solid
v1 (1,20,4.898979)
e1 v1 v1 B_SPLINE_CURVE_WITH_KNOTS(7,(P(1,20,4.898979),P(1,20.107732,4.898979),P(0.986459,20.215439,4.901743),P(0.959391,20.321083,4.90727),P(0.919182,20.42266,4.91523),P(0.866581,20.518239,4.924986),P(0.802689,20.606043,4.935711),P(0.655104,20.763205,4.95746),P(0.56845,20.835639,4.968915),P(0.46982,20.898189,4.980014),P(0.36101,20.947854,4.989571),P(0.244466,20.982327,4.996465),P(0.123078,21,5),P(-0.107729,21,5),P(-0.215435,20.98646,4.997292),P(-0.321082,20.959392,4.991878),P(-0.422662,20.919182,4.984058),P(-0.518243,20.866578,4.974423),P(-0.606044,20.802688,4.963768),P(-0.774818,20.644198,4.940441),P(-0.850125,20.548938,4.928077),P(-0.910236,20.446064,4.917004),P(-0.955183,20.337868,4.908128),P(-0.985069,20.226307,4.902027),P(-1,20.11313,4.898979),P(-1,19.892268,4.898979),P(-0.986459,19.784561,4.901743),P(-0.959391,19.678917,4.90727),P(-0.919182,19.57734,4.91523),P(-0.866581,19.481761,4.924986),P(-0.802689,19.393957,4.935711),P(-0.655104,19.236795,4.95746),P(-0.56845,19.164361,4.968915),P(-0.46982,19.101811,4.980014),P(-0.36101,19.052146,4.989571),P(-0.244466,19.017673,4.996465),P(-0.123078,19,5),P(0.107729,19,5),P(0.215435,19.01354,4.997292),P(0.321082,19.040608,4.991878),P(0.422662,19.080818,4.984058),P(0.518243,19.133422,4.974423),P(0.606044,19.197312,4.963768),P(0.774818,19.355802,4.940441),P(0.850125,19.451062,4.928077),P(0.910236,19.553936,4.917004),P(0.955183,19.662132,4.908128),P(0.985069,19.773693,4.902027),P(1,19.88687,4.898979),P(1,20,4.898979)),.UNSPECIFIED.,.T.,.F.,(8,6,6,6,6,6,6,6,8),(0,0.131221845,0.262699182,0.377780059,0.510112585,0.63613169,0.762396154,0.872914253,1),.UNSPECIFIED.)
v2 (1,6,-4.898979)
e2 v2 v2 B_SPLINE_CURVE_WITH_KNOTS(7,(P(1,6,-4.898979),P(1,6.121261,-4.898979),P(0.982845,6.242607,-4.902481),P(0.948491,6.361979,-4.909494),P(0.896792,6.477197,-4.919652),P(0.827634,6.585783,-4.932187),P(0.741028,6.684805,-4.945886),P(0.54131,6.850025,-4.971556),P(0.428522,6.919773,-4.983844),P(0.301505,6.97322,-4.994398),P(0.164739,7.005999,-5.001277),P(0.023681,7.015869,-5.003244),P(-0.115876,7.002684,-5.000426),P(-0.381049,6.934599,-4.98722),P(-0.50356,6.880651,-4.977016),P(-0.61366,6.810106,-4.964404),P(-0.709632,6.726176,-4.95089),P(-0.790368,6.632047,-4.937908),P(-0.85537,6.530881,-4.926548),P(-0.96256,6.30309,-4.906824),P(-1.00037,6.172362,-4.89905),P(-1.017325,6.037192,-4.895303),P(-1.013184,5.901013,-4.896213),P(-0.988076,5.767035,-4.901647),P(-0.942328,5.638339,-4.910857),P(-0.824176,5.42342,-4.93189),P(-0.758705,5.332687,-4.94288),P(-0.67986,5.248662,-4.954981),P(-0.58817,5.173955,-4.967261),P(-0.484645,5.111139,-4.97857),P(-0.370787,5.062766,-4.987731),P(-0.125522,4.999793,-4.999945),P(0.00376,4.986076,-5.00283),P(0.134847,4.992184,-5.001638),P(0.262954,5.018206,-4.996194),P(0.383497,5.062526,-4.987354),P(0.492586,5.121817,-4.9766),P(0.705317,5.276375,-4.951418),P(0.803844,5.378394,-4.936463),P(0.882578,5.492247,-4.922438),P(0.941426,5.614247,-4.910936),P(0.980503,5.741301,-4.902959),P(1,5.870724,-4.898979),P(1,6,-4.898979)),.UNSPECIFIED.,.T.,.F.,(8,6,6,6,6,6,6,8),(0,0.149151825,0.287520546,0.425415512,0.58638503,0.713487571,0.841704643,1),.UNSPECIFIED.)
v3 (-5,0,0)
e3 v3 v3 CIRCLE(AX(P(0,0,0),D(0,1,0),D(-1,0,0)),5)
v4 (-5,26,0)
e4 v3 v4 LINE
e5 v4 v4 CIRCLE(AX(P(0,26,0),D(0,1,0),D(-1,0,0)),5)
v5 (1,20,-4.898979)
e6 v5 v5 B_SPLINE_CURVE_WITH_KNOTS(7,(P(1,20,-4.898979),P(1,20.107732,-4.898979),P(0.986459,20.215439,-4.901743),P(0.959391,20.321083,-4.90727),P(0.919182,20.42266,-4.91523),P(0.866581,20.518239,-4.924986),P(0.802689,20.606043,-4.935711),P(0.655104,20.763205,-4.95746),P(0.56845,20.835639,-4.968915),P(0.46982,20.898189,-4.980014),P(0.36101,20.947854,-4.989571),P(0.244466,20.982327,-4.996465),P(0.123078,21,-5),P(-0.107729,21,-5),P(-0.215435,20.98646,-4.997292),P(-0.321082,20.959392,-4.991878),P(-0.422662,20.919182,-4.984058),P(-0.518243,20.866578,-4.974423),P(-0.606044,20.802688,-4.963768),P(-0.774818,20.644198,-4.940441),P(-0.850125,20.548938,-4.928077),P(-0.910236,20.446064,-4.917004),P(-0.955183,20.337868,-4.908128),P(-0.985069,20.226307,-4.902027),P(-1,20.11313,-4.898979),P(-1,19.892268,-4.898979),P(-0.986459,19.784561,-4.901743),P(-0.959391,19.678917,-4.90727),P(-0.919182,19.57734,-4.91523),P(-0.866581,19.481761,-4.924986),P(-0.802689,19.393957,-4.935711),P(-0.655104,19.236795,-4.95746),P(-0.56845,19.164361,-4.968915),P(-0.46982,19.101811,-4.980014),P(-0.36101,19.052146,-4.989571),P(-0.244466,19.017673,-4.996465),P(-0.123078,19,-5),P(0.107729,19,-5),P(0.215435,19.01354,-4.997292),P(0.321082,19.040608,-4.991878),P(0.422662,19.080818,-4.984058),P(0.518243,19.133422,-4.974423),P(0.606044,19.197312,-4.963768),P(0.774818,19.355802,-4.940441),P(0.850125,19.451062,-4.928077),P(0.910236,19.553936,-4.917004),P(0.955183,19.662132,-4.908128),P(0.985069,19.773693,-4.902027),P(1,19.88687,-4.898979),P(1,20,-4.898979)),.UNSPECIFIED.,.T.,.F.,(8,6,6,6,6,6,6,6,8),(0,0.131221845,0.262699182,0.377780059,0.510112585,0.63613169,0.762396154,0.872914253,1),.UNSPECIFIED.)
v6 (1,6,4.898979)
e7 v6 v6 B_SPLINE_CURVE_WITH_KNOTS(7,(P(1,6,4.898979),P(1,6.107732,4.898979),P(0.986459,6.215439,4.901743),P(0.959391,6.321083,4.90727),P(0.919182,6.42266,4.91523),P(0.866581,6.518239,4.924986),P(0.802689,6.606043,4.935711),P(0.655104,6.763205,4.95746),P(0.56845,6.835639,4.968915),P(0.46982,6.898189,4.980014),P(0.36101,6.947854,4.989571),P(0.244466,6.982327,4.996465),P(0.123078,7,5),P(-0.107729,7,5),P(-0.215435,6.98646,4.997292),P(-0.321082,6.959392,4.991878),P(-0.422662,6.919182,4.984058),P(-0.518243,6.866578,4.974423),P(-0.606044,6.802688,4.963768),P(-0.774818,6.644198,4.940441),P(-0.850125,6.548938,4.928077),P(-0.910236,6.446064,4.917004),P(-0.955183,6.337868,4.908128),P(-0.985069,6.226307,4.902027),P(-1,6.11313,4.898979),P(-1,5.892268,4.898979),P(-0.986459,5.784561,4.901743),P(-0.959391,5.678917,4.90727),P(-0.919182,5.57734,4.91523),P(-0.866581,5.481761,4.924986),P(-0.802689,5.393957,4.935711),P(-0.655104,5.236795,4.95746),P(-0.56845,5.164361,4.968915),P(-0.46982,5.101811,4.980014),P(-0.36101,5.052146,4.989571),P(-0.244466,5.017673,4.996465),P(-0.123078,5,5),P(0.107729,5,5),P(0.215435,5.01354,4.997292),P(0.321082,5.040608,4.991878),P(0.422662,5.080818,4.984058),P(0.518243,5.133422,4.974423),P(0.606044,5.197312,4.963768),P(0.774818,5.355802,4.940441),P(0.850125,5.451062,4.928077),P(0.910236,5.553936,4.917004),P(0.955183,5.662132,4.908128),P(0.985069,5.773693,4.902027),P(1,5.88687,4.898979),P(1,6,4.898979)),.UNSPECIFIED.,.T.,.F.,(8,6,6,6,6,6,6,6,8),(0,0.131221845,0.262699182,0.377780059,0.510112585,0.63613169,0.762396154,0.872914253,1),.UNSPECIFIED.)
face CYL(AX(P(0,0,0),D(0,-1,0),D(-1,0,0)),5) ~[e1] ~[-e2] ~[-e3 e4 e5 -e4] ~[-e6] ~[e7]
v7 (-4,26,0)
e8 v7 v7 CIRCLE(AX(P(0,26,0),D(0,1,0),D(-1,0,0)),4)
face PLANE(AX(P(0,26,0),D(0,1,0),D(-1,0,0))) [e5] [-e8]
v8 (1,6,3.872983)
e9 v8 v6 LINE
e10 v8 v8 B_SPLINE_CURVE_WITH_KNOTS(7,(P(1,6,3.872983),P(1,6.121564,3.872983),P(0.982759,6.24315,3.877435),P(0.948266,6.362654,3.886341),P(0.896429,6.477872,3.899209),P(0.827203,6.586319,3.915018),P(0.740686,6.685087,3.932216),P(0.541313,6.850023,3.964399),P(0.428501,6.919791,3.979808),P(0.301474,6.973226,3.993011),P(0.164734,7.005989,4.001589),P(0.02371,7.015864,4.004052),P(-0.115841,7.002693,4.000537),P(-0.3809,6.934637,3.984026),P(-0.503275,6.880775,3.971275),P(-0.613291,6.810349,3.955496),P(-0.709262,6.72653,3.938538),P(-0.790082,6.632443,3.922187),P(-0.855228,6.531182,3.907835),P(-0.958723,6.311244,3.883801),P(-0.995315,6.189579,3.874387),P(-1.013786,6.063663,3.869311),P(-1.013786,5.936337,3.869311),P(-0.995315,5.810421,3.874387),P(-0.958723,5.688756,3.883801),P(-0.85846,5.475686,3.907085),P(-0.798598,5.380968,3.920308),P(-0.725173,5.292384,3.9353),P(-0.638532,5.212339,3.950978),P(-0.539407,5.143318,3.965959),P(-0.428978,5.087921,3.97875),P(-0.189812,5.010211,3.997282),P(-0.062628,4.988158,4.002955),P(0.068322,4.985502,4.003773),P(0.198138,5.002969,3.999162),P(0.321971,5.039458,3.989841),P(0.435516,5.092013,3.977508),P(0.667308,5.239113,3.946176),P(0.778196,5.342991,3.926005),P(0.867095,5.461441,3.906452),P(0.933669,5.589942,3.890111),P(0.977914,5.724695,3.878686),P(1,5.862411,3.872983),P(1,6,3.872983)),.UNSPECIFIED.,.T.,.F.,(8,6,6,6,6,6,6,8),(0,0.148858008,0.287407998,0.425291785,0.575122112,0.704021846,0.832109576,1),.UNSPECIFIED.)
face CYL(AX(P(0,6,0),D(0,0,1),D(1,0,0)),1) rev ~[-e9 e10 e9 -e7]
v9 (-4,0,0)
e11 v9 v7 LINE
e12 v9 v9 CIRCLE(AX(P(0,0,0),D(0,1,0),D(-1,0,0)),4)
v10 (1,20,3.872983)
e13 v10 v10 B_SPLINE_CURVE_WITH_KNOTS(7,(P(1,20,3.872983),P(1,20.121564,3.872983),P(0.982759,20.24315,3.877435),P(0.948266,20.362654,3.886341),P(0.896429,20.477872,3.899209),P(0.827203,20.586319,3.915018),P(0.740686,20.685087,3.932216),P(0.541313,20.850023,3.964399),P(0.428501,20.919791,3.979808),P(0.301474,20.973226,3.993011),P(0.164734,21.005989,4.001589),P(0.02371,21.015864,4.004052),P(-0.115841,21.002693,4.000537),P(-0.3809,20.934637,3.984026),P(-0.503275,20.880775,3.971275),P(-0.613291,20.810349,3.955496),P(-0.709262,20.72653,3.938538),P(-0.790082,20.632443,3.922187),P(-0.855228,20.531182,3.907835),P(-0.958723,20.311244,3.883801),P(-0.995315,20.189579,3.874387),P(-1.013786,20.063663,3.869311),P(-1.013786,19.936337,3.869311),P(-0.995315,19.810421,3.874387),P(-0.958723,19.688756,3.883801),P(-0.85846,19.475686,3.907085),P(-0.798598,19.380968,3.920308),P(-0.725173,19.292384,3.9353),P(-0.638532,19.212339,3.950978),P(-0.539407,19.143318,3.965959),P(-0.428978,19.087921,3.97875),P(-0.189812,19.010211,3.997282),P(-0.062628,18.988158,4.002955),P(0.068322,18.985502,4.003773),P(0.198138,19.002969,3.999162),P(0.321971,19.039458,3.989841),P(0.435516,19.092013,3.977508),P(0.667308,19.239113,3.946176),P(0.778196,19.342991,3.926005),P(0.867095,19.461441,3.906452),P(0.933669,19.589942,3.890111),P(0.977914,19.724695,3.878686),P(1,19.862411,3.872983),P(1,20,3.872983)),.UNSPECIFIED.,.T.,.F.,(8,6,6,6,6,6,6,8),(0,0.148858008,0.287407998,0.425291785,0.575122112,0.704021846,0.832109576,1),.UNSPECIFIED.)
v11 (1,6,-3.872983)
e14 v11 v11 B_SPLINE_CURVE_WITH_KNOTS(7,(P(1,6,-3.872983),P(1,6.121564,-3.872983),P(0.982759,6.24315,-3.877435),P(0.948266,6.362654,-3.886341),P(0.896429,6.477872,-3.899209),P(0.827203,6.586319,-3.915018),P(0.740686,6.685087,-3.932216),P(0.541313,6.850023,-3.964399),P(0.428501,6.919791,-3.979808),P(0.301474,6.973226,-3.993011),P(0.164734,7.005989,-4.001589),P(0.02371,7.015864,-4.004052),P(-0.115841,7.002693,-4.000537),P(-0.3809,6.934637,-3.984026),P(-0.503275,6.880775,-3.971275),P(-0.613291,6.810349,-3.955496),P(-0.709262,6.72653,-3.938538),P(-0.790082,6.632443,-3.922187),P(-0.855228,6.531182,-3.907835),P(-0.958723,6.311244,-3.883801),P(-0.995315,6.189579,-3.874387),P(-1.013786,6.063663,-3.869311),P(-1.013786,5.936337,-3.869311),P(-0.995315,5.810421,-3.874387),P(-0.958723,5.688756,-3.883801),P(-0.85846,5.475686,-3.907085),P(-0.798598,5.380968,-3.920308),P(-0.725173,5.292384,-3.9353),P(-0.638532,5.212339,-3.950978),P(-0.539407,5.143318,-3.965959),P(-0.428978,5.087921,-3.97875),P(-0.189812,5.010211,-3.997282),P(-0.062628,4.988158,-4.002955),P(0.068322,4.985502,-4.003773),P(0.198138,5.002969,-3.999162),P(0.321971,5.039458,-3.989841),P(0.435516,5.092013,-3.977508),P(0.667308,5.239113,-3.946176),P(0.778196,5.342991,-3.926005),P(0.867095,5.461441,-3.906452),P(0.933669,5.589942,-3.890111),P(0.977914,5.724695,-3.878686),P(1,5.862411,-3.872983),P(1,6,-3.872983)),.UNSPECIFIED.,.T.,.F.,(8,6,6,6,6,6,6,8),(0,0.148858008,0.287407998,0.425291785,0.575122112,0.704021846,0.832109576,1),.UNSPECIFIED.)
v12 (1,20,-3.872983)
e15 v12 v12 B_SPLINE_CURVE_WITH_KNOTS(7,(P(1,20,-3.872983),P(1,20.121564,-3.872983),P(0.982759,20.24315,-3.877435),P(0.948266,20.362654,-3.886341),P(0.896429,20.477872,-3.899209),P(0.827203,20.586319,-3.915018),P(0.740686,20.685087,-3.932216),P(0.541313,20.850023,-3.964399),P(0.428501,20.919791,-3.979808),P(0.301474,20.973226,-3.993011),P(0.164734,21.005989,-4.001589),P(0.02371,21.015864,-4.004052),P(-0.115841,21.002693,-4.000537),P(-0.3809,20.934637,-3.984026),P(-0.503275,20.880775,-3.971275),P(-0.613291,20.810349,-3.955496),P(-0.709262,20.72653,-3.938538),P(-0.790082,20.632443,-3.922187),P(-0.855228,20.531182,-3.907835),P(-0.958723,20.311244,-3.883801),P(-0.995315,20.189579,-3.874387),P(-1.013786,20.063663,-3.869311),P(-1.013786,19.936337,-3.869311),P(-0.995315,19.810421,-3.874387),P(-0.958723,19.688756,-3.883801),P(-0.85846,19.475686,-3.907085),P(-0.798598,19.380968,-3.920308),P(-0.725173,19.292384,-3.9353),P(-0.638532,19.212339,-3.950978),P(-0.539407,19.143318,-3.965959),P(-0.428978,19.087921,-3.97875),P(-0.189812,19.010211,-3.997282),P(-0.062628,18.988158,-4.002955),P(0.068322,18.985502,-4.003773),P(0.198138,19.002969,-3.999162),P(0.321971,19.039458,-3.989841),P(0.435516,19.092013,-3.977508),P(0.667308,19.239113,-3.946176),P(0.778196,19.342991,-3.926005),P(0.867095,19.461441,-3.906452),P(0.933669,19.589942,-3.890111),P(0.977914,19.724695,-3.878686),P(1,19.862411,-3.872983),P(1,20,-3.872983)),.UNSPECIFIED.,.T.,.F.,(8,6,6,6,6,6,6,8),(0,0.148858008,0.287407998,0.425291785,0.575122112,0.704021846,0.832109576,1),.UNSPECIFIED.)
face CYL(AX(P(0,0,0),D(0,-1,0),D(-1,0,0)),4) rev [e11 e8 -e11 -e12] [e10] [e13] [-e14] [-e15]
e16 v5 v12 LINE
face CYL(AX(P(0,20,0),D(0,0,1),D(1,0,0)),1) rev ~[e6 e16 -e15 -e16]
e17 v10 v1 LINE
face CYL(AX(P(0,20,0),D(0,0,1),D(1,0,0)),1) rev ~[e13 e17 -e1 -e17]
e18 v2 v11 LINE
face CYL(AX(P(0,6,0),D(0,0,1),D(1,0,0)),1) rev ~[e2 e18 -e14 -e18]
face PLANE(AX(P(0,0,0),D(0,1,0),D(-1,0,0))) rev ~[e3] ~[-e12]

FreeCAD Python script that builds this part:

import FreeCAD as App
import Part
import Sketcher
from FreeCAD import Vector
Q = App.Units.Quantity

doc = App.newDocument("Part")
body = doc.addObject("PartDesign::Body", "Body")

# Sketch on XZ plane
sketch1 = doc.addObject("Sketcher::SketchObject", "Sketch")
body.addObject(sketch1)
sketch1.AttachmentSupport = (doc.XZ_Plane, [""])
sketch1.MapMode = "FlatFace"
sketch1.addGeometry([
    Part.Circle(Vector(0, 0, 0), Vector(0, 0, 1), 5),
    Part.Circle(Vector(0, 0, 0), Vector(0, 0, 1), 4),
], False)
sketch1.addConstraint([
    Sketcher.Constraint("Coincident", 0, 3, -1, 1),
    Sketcher.Constraint("Coincident", 1, 3, -1, 1),
    Sketcher.Constraint("Diameter", 0, Q("10 mm")),
    Sketcher.Constraint("Diameter", 1, Q("8 mm")),
])
pad1 = doc.addObject("PartDesign::Pad", "Pad")
body.addObject(pad1)
pad1.Profile = sketch1
pad1.Length = 26
pad1.Reversed = True

# Sketch on XY plane
sketch2 = doc.addObject("Sketcher::SketchObject", "Sketch001")
body.addObject(sketch2)
sketch2.AttachmentSupport = (doc.XY_Plane, [""])
sketch2.MapMode = "FlatFace"
sketch2.addGeometry([
    Part.Circle(Vector(0, 6, 0), Vector(0, 0, 1), 1),
    Part.Circle(Vector(0, 20, 0), Vector(0, 0, 1), 1),
], False)
sketch2.addConstraint([
    Sketcher.Constraint("Equal", 0, 1),
    Sketcher.Constraint("PointOnObject", 0, 3, -2),
    Sketcher.Constraint("PointOnObject", 1, 3, -2),
    Sketcher.Constraint("Diameter", 0, Q("2 mm")),
    Sketcher.Constraint("DistanceY", -1, 1, 0, 3, Q("6 mm")),
    Sketcher.Constraint("DistanceY", -1, 1, 1, 3, Q("20 mm")),
])
pocket1 = doc.addObject("PartDesign::Pocket", "Pocket")
body.addObject(pocket1)
pocket1.Profile = sketch2
pocket1.Length = 24
pocket1.Midplane = True

doc.recompute()
